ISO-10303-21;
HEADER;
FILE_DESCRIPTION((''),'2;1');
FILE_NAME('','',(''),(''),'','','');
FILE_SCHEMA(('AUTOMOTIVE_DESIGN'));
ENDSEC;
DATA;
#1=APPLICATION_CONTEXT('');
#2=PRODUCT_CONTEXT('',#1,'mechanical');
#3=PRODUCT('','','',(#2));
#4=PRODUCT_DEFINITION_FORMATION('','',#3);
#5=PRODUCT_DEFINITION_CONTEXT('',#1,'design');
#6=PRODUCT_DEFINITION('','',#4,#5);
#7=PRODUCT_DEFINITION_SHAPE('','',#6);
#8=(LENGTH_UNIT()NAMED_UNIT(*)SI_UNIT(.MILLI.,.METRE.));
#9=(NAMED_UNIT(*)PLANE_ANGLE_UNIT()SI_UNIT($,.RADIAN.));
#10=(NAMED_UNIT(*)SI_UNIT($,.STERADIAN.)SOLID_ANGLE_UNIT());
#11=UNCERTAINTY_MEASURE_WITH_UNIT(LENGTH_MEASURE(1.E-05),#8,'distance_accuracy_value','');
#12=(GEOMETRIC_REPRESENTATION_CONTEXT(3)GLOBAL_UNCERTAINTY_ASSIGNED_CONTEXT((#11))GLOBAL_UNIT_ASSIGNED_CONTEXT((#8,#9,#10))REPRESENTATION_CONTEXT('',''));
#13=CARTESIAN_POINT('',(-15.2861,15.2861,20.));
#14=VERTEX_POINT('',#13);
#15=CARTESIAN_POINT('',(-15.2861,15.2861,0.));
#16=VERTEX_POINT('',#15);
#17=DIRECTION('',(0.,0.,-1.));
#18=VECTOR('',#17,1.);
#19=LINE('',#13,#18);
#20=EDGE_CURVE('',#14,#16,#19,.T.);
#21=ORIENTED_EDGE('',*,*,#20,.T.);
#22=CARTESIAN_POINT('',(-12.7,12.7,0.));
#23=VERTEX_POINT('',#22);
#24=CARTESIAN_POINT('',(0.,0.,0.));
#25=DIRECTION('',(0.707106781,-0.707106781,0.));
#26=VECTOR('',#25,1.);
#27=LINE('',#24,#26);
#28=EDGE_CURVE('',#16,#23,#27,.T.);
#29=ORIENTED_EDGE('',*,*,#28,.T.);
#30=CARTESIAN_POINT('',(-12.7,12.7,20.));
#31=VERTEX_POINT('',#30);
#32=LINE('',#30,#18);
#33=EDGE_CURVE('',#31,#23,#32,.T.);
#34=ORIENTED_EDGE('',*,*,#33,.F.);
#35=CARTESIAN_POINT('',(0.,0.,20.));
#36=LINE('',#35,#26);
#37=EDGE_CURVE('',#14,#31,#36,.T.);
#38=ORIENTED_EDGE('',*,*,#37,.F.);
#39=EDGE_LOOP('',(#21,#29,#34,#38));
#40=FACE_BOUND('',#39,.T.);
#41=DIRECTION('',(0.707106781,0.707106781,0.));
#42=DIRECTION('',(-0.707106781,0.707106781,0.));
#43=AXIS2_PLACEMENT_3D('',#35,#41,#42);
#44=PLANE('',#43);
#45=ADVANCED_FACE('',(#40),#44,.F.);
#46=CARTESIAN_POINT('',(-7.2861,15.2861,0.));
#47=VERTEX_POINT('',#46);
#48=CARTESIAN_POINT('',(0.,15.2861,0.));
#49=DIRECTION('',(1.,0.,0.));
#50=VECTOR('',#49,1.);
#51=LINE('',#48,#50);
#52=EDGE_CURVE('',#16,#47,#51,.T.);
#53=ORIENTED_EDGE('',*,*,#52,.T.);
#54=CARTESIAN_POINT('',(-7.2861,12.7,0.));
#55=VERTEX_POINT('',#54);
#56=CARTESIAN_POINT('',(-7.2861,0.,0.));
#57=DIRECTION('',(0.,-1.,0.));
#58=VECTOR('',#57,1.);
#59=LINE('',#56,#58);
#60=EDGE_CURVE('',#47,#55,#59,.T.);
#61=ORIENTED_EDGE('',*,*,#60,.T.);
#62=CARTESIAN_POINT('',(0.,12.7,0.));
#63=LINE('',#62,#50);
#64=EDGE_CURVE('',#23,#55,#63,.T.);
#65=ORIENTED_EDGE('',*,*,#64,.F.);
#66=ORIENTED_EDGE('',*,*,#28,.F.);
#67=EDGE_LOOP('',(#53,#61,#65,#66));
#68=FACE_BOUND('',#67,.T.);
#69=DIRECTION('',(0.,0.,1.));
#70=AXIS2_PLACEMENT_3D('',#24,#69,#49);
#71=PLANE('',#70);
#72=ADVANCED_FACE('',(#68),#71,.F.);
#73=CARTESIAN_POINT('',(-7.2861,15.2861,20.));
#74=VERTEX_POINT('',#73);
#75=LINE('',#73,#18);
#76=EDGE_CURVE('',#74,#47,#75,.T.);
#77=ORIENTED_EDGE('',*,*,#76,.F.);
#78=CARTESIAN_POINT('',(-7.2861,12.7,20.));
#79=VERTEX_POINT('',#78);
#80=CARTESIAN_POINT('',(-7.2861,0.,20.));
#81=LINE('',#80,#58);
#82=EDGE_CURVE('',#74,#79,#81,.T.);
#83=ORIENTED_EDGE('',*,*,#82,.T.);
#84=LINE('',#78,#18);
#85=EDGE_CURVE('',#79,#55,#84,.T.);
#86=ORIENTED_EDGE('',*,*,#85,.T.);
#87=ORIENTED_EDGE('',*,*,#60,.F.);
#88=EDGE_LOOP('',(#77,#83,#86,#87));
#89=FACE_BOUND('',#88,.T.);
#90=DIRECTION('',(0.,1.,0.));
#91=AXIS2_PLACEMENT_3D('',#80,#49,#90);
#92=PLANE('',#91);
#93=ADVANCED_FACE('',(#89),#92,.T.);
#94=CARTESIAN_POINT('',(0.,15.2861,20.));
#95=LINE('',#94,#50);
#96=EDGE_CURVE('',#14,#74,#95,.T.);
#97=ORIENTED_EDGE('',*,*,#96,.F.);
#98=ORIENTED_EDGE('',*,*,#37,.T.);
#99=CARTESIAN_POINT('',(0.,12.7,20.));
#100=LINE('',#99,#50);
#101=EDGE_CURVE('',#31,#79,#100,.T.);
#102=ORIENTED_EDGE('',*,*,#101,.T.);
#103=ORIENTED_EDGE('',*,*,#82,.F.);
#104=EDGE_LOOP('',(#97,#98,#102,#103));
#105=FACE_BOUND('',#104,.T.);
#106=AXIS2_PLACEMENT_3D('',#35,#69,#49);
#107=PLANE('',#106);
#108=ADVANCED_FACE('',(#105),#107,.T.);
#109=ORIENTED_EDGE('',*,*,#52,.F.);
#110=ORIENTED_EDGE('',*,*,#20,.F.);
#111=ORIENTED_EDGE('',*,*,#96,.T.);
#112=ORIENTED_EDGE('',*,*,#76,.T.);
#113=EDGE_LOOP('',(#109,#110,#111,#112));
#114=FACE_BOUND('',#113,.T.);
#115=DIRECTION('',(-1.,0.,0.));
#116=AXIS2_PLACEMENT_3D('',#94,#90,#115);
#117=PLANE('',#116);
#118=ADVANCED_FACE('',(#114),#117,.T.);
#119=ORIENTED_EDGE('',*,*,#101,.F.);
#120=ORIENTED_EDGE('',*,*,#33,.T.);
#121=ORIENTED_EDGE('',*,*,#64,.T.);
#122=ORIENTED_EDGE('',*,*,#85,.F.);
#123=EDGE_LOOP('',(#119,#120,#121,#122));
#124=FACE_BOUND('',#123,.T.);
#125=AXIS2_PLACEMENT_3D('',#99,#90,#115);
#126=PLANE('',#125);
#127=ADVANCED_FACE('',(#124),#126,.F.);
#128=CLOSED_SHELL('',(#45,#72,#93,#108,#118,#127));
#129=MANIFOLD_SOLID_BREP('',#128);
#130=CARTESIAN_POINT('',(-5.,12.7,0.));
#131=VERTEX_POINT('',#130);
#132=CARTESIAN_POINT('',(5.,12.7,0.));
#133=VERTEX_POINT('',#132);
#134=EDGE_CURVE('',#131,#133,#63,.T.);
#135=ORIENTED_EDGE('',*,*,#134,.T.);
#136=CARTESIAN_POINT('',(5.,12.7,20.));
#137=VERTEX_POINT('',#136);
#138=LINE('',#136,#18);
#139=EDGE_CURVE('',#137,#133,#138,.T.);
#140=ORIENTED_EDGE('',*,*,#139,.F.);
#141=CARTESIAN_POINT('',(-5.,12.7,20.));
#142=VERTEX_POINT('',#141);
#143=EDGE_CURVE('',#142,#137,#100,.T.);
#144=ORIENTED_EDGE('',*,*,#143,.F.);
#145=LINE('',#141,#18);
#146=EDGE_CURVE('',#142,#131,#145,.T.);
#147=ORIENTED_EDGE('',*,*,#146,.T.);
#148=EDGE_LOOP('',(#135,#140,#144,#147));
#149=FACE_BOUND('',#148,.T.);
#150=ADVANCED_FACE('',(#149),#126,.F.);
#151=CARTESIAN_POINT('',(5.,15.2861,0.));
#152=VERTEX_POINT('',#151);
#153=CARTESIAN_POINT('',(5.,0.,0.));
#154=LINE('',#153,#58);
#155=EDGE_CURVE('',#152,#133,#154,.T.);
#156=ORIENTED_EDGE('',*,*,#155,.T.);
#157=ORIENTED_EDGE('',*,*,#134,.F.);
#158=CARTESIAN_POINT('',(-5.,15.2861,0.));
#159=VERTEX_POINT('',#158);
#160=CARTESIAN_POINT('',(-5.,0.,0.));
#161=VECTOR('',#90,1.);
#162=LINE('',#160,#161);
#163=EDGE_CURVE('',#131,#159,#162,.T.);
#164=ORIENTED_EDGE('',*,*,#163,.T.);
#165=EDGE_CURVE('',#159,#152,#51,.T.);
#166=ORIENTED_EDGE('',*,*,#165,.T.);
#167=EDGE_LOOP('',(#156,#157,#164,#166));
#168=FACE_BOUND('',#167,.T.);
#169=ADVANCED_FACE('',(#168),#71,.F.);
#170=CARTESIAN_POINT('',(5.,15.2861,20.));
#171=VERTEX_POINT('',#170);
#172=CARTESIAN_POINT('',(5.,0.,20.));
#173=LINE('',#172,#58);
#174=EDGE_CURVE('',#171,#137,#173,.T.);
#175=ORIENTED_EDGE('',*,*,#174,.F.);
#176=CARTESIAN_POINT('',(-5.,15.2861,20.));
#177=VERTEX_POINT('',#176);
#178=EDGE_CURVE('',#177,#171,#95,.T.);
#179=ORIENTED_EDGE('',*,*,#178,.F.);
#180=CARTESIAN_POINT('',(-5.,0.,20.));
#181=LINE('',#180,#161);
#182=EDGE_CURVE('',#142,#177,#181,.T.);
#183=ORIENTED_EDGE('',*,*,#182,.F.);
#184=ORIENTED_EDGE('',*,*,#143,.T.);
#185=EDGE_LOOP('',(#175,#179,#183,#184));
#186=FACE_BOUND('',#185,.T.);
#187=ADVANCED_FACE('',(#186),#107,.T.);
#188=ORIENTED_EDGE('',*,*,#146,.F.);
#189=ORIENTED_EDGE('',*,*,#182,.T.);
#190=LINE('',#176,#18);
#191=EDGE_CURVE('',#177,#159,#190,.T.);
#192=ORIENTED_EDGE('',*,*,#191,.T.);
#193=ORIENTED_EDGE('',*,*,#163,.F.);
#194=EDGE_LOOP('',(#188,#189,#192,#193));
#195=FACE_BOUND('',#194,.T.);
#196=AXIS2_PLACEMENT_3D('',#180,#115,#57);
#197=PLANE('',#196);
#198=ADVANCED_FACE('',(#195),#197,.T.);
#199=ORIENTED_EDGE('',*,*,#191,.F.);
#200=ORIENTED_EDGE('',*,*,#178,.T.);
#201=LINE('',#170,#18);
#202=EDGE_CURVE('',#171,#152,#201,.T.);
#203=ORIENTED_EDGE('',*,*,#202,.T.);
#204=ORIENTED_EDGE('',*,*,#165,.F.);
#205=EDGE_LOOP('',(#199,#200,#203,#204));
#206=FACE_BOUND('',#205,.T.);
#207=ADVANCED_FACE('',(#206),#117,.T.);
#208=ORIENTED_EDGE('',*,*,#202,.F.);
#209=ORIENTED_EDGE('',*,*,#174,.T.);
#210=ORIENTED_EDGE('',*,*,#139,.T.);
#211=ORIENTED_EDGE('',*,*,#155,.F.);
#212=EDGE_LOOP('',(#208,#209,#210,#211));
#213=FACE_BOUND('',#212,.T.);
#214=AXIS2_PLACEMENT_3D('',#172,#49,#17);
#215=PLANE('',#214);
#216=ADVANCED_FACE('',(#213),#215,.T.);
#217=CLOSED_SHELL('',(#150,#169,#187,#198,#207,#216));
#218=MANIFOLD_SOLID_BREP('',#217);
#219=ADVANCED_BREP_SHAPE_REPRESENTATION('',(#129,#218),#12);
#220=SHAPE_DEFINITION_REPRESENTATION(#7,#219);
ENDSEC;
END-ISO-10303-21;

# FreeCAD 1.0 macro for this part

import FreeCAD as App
import Part
import Sketcher
from FreeCAD import Vector
Q = App.Units.Quantity

doc = App.newDocument("Part")
body = doc.addObject("PartDesign::Body", "Body")

sketch1 = body.newObject("Sketcher::SketchObject", "Sketch")
sketch1.AttachmentSupport = (doc.getObject("XY_Plane"), [""])
sketch1.MapMode = "FlatFace"
sketch1.addGeometry(Part.LineSegment(Vector(-7.3, 15.3, 0), Vector(-15.3, 15.3, 0)), False)
sketch1.addGeometry(Part.LineSegment(Vector(-15.3, 15.3, 0), Vector(-12.7, 12.7, 0)), False)
sketch1.addGeometry(Part.LineSegment(Vector(-12.7, 12.7, 0), Vector(-7.3, 12.7, 0)), False)
sketch1.addGeometry(Part.LineSegment(Vector(-7.3, 12.7, 0), Vector(-7.3, 15.3, 0)), False)
sketch1.addConstraint(Sketcher.Constraint("Coincident", 0, 2, 1, 1))
sketch1.addConstraint(Sketcher.Constraint("Coincident", 1, 2, 2, 1))
sketch1.addConstraint(Sketcher.Constraint("Coincident", 2, 2, 3, 1))
sketch1.addConstraint(Sketcher.Constraint("Coincident", 3, 2, 0, 1))
sketch1.addConstraint(Sketcher.Constraint("Horizontal", 0))
sketch1.addConstraint(Sketcher.Constraint("Horizontal", 2))
sketch1.addConstraint(Sketcher.Constraint("Vertical", 3))
sketch1.addConstraint(Sketcher.Constraint("DistanceX", 0, 2, 0, 1, Q("8 mm")))
sketch1.addConstraint(Sketcher.Constraint("Angle", 1, Q("-45 deg")))
sketch1.addConstraint(Sketcher.Constraint("DistanceX", 1, 2, -1, 1, Q("12.7 mm")))
sketch1.addConstraint(Sketcher.Constraint("DistanceY", -1, 1, 1, 2, Q("12.7 mm")))
sketch1.addConstraint(Sketcher.Constraint("DistanceX", 2, 1, 2, 2, Q("5.4139 mm")))
pad1 = body.newObject("PartDesign::Pad", "Pad")
pad1.Profile = sketch1
pad1.Length = 20
body2 = doc.addObject("PartDesign::Body", "Body001")

sketch2 = body2.newObject("Sketcher::SketchObject", "Sketch001")
sketch2.AttachmentSupport = (doc.getObject("XY_Plane001"), [""])
sketch2.MapMode = "FlatFace"
sketch2.addGeometry(Part.LineSegment(Vector(-5, 15.3, 0), Vector(-5, 12.7, 0)), False)
sketch2.addGeometry(Part.LineSegment(Vector(-5, 12.7, 0), Vector(5, 12.7, 0)), False)
sketch2.addGeometry(Part.LineSegment(Vector(5, 12.7, 0), Vector(5, 15.3, 0)), False)
sketch2.addGeometry(Part.LineSegment(Vector(5, 15.3, 0), Vector(-5, 15.3, 0)), False)
sketch2.addConstraint(Sketcher.Constraint("Coincident", 0, 2, 1, 1))
sketch2.addConstraint(Sketcher.Constraint("Coincident", 1, 2, 2, 1))
sketch2.addConstraint(Sketcher.Constraint("Coincident", 2, 2, 3, 1))
sketch2.addConstraint(Sketcher.Constraint("Coincident", 3, 2, 0, 1))
sketch2.addConstraint(Sketcher.Constraint("Vertical", 0))
sketch2.addConstraint(Sketcher.Constraint("Horizontal", 1))
sketch2.addConstraint(Sketcher.Constraint("Vertical", 2))
sketch2.addConstraint(Sketcher.Constraint("Horizontal", 3))
sketch2.addConstraint(Sketcher.Constraint("DistanceX", 1, 1, 1, 2, Q("10 mm")))
sketch2.addConstraint(Sketcher.Constraint("DistanceX", 0, 2, -1, 1, Q("5 mm")))
sketch2.addConstraint(Sketcher.Constraint("DistanceY", -1, 1, 0, 2, Q("12.7 mm")))
sketch2.addConstraint(Sketcher.Constraint("DistanceY", 0, 2, 0, 1, Q("2.5861 mm")))
pad2 = body2.newObject("PartDesign::Pad", "Pad001")
pad2.Profile = sketch2
pad2.Length = 20

doc.recompute()
